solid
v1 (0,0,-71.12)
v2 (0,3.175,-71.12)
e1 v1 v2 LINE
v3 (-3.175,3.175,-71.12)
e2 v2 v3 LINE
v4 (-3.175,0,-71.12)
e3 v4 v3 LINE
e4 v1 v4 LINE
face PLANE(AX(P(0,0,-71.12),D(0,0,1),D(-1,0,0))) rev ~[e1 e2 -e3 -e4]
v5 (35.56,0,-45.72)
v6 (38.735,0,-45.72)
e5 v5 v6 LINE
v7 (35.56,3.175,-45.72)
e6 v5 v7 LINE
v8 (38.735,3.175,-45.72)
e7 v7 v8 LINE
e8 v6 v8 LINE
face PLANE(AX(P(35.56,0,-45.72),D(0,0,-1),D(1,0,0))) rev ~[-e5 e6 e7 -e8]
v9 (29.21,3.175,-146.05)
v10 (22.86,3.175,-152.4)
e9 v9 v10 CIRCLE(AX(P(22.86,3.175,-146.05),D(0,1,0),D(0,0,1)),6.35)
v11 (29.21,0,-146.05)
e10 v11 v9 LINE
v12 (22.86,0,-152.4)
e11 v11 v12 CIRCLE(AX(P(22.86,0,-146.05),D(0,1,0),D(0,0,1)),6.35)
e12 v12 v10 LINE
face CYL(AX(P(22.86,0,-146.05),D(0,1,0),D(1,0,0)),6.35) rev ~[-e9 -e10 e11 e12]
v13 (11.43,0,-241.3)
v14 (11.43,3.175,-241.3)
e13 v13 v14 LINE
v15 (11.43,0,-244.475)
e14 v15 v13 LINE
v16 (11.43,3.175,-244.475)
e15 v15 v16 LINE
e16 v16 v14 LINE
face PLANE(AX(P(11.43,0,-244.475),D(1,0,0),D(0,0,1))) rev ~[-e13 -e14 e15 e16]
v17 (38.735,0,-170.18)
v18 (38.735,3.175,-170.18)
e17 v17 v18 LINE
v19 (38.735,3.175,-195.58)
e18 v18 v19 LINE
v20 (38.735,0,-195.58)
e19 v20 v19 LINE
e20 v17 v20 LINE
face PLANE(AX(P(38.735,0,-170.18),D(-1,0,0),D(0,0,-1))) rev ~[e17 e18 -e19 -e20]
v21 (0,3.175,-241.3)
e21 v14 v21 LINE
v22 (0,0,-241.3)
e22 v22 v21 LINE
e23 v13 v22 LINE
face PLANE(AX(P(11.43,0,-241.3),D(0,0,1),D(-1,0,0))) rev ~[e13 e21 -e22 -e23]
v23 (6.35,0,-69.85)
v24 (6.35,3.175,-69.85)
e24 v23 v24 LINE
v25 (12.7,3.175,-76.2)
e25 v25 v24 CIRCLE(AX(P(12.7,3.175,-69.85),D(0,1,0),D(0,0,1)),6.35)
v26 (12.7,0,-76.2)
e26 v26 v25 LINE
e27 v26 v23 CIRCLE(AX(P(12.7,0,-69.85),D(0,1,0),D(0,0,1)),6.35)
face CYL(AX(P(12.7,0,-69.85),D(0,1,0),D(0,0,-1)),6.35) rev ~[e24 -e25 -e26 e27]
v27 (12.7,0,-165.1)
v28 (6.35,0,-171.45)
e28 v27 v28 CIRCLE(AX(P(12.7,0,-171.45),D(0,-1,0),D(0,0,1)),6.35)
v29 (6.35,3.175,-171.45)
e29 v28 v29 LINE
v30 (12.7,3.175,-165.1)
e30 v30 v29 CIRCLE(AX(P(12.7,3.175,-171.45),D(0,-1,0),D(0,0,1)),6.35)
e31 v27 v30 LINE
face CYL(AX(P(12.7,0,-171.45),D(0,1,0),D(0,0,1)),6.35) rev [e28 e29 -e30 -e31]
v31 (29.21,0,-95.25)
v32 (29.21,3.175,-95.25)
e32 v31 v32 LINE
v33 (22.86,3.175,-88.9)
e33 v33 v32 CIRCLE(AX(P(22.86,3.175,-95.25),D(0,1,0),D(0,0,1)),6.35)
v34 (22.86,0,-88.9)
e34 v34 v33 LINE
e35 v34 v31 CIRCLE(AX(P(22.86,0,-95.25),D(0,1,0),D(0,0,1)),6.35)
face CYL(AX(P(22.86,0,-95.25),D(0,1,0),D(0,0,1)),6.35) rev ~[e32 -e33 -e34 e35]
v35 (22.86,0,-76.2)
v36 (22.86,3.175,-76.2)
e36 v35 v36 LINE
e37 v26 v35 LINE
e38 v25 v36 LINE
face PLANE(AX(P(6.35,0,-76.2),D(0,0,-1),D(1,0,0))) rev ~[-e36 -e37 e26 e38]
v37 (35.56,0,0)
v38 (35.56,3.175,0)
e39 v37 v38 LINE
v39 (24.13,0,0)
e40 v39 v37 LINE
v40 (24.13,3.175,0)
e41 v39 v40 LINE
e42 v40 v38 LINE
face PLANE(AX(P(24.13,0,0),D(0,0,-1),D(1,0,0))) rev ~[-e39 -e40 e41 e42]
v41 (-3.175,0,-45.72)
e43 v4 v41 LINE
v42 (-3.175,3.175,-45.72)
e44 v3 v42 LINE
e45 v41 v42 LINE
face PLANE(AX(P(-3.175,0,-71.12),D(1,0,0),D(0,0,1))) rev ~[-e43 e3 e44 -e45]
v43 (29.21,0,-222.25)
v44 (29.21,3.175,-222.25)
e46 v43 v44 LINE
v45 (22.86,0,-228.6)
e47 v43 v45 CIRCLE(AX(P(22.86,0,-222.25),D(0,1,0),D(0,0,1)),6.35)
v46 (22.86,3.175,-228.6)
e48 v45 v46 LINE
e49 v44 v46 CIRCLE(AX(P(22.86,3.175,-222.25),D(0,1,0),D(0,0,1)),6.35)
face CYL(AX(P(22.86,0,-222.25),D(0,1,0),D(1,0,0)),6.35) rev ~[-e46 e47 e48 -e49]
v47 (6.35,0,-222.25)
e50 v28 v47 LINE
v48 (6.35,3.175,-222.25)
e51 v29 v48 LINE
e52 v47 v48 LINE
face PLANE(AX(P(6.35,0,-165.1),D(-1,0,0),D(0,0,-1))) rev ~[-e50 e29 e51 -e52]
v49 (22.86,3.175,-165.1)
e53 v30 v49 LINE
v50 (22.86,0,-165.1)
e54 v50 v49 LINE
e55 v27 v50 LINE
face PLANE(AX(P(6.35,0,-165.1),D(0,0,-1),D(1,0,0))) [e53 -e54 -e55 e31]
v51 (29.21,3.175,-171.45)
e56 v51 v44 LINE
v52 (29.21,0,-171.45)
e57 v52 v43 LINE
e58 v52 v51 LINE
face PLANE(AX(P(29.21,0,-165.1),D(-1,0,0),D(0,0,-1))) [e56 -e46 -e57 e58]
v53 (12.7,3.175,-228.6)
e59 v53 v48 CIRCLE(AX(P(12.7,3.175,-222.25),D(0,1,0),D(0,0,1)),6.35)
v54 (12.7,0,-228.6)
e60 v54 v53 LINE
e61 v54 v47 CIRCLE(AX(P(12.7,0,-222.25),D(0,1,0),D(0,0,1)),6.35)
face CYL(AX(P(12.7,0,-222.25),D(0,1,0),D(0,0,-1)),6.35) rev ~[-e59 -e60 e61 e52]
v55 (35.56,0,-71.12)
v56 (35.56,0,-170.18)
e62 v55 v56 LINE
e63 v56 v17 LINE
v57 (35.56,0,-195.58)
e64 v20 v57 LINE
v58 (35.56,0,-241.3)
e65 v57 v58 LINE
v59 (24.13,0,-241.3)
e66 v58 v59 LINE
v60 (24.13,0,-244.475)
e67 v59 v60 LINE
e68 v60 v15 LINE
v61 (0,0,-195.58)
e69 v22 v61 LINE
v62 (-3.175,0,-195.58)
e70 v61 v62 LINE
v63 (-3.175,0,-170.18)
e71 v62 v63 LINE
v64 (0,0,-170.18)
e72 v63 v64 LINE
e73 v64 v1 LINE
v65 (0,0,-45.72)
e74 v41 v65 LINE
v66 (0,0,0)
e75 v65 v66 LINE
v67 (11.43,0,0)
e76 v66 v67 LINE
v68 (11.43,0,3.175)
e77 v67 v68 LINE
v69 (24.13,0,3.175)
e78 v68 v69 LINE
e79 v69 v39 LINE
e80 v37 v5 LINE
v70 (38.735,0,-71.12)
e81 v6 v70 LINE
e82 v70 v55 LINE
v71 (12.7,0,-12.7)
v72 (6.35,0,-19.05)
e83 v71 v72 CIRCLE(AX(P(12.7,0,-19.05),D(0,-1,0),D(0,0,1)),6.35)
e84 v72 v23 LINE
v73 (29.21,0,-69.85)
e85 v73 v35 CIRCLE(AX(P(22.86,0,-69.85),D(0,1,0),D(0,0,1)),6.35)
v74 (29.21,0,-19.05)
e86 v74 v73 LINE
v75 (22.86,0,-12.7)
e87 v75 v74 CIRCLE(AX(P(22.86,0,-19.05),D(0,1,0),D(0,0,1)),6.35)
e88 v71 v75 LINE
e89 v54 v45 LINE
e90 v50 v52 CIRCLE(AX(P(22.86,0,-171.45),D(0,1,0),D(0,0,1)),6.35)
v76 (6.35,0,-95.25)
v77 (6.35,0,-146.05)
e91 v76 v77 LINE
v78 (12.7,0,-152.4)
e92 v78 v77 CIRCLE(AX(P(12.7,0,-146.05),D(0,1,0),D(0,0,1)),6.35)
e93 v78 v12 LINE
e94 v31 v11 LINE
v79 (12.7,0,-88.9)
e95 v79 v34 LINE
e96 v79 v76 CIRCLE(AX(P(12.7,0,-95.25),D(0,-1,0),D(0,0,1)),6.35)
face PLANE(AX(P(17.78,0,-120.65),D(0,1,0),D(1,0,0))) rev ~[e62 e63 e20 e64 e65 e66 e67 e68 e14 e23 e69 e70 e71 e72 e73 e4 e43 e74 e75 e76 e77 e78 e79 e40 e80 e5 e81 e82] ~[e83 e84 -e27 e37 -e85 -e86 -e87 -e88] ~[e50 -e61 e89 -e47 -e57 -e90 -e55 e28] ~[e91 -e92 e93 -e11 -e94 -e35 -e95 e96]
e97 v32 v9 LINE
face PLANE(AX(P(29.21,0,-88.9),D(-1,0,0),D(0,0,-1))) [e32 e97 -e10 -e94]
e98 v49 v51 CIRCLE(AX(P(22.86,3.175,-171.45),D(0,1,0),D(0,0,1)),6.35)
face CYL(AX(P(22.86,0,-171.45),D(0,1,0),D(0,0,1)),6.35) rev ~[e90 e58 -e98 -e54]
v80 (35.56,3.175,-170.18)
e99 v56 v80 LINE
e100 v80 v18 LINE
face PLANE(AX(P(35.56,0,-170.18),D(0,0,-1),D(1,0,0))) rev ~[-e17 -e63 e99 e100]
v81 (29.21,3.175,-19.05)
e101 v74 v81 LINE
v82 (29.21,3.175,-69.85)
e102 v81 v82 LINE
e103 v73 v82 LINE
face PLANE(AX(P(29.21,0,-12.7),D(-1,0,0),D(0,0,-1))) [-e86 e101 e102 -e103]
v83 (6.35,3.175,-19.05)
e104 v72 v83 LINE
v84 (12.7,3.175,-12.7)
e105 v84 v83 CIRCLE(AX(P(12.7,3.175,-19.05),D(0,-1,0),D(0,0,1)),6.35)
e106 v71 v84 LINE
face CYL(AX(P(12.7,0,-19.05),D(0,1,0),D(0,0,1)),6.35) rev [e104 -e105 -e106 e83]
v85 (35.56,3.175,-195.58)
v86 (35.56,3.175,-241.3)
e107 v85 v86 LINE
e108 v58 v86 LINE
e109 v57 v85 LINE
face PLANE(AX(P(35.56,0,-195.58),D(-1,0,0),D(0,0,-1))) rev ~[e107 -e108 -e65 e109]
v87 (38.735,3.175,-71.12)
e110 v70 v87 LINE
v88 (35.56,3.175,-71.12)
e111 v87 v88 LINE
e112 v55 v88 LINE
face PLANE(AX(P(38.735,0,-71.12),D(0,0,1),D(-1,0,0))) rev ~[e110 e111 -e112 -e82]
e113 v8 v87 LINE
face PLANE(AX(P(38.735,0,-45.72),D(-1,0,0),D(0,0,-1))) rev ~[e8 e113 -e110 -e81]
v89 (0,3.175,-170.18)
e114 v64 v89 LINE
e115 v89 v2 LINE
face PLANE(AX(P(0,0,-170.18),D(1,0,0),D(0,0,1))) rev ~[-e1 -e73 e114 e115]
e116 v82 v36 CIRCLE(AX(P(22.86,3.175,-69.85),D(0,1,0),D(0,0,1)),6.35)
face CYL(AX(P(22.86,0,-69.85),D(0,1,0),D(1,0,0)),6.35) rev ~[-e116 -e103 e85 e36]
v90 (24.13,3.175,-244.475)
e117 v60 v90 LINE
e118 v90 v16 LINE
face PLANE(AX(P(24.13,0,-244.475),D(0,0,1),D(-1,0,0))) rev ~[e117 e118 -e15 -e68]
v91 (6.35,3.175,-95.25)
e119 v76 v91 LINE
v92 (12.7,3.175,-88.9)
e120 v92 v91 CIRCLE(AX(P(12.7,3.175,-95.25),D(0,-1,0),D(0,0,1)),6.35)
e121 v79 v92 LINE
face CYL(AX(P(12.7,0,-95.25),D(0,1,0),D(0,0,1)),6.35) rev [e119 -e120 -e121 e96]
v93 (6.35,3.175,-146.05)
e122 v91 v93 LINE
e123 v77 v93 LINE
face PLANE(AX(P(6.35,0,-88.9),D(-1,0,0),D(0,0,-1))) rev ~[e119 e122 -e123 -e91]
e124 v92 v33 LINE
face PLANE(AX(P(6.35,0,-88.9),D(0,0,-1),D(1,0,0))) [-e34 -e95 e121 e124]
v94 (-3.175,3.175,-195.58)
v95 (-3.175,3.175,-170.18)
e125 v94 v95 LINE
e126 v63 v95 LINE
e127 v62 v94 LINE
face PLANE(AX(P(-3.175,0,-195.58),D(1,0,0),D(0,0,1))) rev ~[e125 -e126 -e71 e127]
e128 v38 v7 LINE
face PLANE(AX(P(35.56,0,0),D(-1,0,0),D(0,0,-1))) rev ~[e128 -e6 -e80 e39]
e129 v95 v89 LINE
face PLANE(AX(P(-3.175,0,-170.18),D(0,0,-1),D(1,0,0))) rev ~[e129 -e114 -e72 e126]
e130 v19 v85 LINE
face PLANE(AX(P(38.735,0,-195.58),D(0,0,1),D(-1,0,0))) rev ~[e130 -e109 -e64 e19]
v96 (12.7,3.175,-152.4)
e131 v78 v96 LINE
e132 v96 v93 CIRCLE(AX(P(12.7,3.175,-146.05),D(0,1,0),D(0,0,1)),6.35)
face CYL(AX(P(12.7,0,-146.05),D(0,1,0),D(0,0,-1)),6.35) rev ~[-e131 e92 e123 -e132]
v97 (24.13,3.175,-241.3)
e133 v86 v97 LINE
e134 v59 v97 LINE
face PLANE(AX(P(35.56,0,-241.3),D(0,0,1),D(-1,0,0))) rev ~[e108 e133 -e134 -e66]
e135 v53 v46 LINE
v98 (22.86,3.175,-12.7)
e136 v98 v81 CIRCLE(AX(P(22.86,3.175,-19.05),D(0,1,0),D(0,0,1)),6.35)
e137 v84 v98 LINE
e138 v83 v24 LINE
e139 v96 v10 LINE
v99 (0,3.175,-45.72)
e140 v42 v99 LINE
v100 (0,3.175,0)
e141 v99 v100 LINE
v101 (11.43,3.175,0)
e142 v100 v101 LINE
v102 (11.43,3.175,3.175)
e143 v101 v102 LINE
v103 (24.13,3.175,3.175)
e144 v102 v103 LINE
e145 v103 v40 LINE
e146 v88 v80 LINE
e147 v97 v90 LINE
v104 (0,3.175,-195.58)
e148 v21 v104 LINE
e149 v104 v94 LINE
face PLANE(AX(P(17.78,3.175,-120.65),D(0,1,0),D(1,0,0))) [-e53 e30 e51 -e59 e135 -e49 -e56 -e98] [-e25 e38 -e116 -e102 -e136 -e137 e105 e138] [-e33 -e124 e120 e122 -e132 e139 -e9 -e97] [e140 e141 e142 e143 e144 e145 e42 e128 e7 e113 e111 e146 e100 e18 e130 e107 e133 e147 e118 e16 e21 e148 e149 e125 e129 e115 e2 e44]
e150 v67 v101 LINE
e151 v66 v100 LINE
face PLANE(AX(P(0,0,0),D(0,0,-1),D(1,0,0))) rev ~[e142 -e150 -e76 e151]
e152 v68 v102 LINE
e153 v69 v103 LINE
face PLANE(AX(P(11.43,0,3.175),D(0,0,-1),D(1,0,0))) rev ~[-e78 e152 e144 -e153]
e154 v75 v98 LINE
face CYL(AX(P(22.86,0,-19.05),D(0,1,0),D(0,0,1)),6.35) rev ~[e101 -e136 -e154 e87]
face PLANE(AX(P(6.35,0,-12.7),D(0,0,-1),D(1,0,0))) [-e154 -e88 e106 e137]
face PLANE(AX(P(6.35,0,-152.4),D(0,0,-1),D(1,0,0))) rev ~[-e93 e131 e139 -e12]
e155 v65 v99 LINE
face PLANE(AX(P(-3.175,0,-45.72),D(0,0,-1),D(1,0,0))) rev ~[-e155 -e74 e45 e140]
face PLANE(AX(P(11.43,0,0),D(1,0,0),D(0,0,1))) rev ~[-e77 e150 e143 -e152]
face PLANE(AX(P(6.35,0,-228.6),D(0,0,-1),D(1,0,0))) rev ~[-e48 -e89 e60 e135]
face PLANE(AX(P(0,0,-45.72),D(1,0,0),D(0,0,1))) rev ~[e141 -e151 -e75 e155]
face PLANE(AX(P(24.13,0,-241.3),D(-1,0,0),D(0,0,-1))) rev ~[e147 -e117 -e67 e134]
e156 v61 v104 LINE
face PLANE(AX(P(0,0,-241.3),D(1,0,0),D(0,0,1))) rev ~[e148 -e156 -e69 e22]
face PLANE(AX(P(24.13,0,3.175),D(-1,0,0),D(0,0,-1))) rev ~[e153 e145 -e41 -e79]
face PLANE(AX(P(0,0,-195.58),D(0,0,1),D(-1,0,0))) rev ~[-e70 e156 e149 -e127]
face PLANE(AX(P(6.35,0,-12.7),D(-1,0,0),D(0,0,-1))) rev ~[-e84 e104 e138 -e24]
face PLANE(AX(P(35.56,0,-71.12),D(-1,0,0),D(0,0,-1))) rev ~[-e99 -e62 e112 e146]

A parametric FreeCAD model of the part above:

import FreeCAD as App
import Part
import Sketcher
Q = App.Units.Quantity


def edges_at(feature, points):
    """Names of the edges that pass closest to the given points."""
    edges = feature.Shape.Edges
    near = lambda p: min(range(len(edges)), key=lambda i: edges[i].distToShape(Part.Vertex(*p))[0])
    return sorted({f"Edge{near(p) + 1}" for p in points})


def add_polygon(sketch, points):
    """Adds a closed chain of lines whose ends are joined by coincident constraints."""
    first, n = sketch.GeometryCount, len(points)
    for a, b in zip(points, points[1:] + points[:1]):
        sketch.addGeometry(Part.LineSegment(App.Vector(*a, 0), App.Vector(*b, 0)), False)
    for i in range(n):
        sketch.addConstraint(Sketcher.Constraint("Coincident", first + i, 2, first + (i + 1) % n, 1))

doc = App.newDocument("Part")
body = doc.addObject("PartDesign::Body", "Body")

# Sketch on XZ plane
sketch1 = doc.addObject("Sketcher::SketchObject", "Sketch")
body.addObject(sketch1)
sketch1.AttachmentSupport = (doc.XZ_Plane, [""])
sketch1.MapMode = "FlatFace"
add_polygon(sketch1, [(35.6, 0), (35.6, -45.7), (38.7, -45.7), (38.7, -71.1), (35.6, -71.1), (35.6, -170.2), (38.7, -170.2), (38.7, -195.6), (35.6, -195.6), (35.6, -241.3), (24.1, -241.3), (24.1, -244.5), (11.4, -244.5), (11.4, -241.3), (0, -241.3), (0, -195.6), (-3.2, -195.6), (-3.2, -170.2), (0, -170.2), (0, -71.1), (-3.2, -71.1), (-3.2, -45.7), (0, -45.7), (0, 0), (11.4, 0), (11.4, 3.2), (24.1, 3.2), (24.1, 0)])  # lines 0-27
sketch1.addConstraint(Sketcher.Constraint("Vertical", 0))
sketch1.addConstraint(Sketcher.Constraint("Horizontal", 1))
sketch1.addConstraint(Sketcher.Constraint("Vertical", 2))
sketch1.addConstraint(Sketcher.Constraint("Horizontal", 3))
sketch1.addConstraint(Sketcher.Constraint("Vertical", 4))
sketch1.addConstraint(Sketcher.Constraint("Horizontal", 5))
sketch1.addConstraint(Sketcher.Constraint("Vertical", 6))
sketch1.addConstraint(Sketcher.Constraint("Horizontal", 7))
sketch1.addConstraint(Sketcher.Constraint("Vertical", 8))
sketch1.addConstraint(Sketcher.Constraint("Horizontal", 9))
sketch1.addConstraint(Sketcher.Constraint("Vertical", 10))
sketch1.addConstraint(Sketcher.Constraint("Horizontal", 11))
sketch1.addConstraint(Sketcher.Constraint("Vertical", 12))
sketch1.addConstraint(Sketcher.Constraint("Horizontal", 13))
sketch1.addConstraint(Sketcher.Constraint("Vertical", 14))
sketch1.addConstraint(Sketcher.Constraint("Horizontal", 15))
sketch1.addConstraint(Sketcher.Constraint("Vertical", 16))
sketch1.addConstraint(Sketcher.Constraint("Horizontal", 17))
sketch1.addConstraint(Sketcher.Constraint("Vertical", 18))
sketch1.addConstraint(Sketcher.Constraint("Horizontal", 19))
sketch1.addConstraint(Sketcher.Constraint("Vertical", 20))
sketch1.addConstraint(Sketcher.Constraint("Horizontal", 21))
sketch1.addConstraint(Sketcher.Constraint("Vertical", 22))
sketch1.addConstraint(Sketcher.Constraint("Horizontal", 23))
sketch1.addConstraint(Sketcher.Constraint("Vertical", 24))
sketch1.addConstraint(Sketcher.Constraint("Horizontal", 25))
sketch1.addConstraint(Sketcher.Constraint("Vertical", 26))
sketch1.addConstraint(Sketcher.Constraint("Horizontal", 27))
sketch1.addConstraint(Sketcher.Constraint("Coincident", 22, 2, -1, 1))
sketch1.addConstraint(Sketcher.Constraint("PointOnObject", 13, 2, -2))
sketch1.addConstraint(Sketcher.Constraint("PointOnObject", 17, 2, -2))
sketch1.addConstraint(Sketcher.Constraint("PointOnObject", 26, 2, -1))
sketch1.addConstraint(Sketcher.Constraint("Horizontal", 9, 2, 12, 2))
sketch1.addConstraint(Sketcher.Constraint("Horizontal", 7, 2, 14, 2))
sketch1.addConstraint(Sketcher.Constraint("Horizontal", 5, 2, 16, 2))
sketch1.addConstraint(Sketcher.Constraint("Horizontal", 3, 2, 18, 2))
sketch1.addConstraint(Sketcher.Constraint("Horizontal", 1, 2, 20, 2))
sketch1.addConstraint(Sketcher.Constraint("Vertical", 0, 2, 3, 2))
sketch1.addConstraint(Sketcher.Constraint("Vertical", 2, 2, 5, 2))
sketch1.addConstraint(Sketcher.Constraint("Vertical", 4, 2, 7, 2))
sketch1.addConstraint(Sketcher.Constraint("Vertical", 16, 2, 19, 2))
sketch1.addConstraint(Sketcher.Constraint("Vertical", 12, 2, 23, 2))
sketch1.addConstraint(Sketcher.Constraint("Vertical", 10, 2, 25, 2))
sketch1.addConstraint(Sketcher.Constraint("Equal", 9, 13))
sketch1.addConstraint(Sketcher.Constraint("Equal", 7, 15))
sketch1.addConstraint(Sketcher.Constraint("Equal", 2, 6))
sketch1.addConstraint(Sketcher.Constraint("Equal", 0, 8))
sketch1.addConstraint(Sketcher.Constraint("Equal", 21, 10))
sketch1.addConstraint(Sketcher.Constraint("Equal", 12, 24))
sketch1.addConstraint(Sketcher.Constraint("DistanceY", 2, 2, 2, 1, Q("1 in")))
sketch1.addConstraint(Sketcher.Constraint("DistanceX", 11, 2, 11, 1, Q("0.5 in")))
sketch1.addConstraint(Sketcher.Constraint("DistanceY", 0, 2, 0, 1, Q("1.8 in")))
sketch1.addConstraint(Sketcher.Constraint("DistanceY", 4, 2, 4, 1, Q("3.9 in")))
sketch1.addConstraint(Sketcher.Constraint("DistanceX", 9, 2, 9, 1, Q("0.45 in")))
sketch1.addConstraint(Sketcher.Constraint("DistanceX", 1, 1, 1, 2, Q("0.125 in")))
pad1 = doc.addObject("PartDesign::Pad", "Pad")
body.addObject(pad1)
pad1.Profile = sketch1
pad1.Length = Q("0.125 in")
pad1.Reversed = True

# Sketch on XZ plane
sketch2 = doc.addObject("Sketcher::SketchObject", "Sketch001")
body.addObject(sketch2)
sketch2.AttachmentSupport = (doc.XZ_Plane, [""])
sketch2.MapMode = "FlatFace"
add_polygon(sketch2, [(6, -76), (6, -13), (29, -13), (29, -76)])  # lines 0-3
add_polygon(sketch2, [(6, -152), (6, -89), (29, -89), (29, -152)])  # lines 4-7
add_polygon(sketch2, [(6, -229), (6, -165), (29, -165), (29, -229)])  # lines 8-11
sketch2.addConstraint(Sketcher.Constraint("Vertical", 0))
sketch2.addConstraint(Sketcher.Constraint("Horizontal", 1))
sketch2.addConstraint(Sketcher.Constraint("Vertical", 2))
sketch2.addConstraint(Sketcher.Constraint("Horizontal", 3))
sketch2.addConstraint(Sketcher.Constraint("Vertical", 4))
sketch2.addConstraint(Sketcher.Constraint("Horizontal", 5))
sketch2.addConstraint(Sketcher.Constraint("Vertical", 6))
sketch2.addConstraint(Sketcher.Constraint("Horizontal", 7))
sketch2.addConstraint(Sketcher.Constraint("Vertical", 8))
sketch2.addConstraint(Sketcher.Constraint("Horizontal", 9))
sketch2.addConstraint(Sketcher.Constraint("Vertical", 10))
sketch2.addConstraint(Sketcher.Constraint("Horizontal", 11))
sketch2.addConstraint(Sketcher.Constraint("Vertical", 3, 2, 4, 2))
sketch2.addConstraint(Sketcher.Constraint("Vertical", 2, 2, 5, 2))
sketch2.addConstraint(Sketcher.Constraint("Vertical", 7, 2, 8, 2))
sketch2.addConstraint(Sketcher.Constraint("Vertical", 6, 2, 9, 2))
sketch2.addConstraint(Sketcher.Constraint("Equal", 2, 4))
sketch2.addConstraint(Sketcher.Constraint("Equal", 6, 8))
sketch2.addConstraint(Sketcher.Constraint("DistanceX", 1, 1, 1, 2, Q("0.9 in")))
sketch2.addConstraint(Sketcher.Constraint("DistanceY", 0, 1, 0, 2, Q("2.5 in")))
sketch2.addConstraint(Sketcher.Constraint("DistanceY", 2, 2, -1, 1, Q("3 in")))
sketch2.addConstraint(Sketcher.Constraint("DistanceY", 6, 2, -1, 1, Q("6 in")))
sketch2.addConstraint(Sketcher.Constraint("DistanceY", 10, 2, -1, 1, Q("9 in")))
sketch2.addConstraint(Sketcher.Constraint("DistanceX", -1, 1, 0, 2, Q("0.25 in")))
pocket1 = doc.addObject("PartDesign::Pocket", "Pocket")
body.addObject(pocket1)
pocket1.Profile = sketch2
pocket1.Length = Q("0.125 in")
doc.recompute()

fillet = doc.addObject("PartDesign::Fillet", "Fillet")
body.addObject(fillet)
fillet.Base = (pocket1, edges_at(pocket1, [
    (29.21, 1.587, -88.9),
    (29.21, 1.587, -152.4),
    (6.35, 1.587, -152.4),
    (6.35, 1.587, -88.9),
    (6.35, 1.587, -165.1),
    (29.21, 1.587, -165.1),
    (29.21, 1.587, -228.6),
    (6.35, 1.587, -228.6),
    (29.21, 1.587, -76.2),
    (6.35, 1.587, -76.2),
    (6.35, 1.587, -12.7),
    (29.21, 1.587, -12.7),
]))
fillet.Radius = Q("0.25 in")

doc.recompute()
